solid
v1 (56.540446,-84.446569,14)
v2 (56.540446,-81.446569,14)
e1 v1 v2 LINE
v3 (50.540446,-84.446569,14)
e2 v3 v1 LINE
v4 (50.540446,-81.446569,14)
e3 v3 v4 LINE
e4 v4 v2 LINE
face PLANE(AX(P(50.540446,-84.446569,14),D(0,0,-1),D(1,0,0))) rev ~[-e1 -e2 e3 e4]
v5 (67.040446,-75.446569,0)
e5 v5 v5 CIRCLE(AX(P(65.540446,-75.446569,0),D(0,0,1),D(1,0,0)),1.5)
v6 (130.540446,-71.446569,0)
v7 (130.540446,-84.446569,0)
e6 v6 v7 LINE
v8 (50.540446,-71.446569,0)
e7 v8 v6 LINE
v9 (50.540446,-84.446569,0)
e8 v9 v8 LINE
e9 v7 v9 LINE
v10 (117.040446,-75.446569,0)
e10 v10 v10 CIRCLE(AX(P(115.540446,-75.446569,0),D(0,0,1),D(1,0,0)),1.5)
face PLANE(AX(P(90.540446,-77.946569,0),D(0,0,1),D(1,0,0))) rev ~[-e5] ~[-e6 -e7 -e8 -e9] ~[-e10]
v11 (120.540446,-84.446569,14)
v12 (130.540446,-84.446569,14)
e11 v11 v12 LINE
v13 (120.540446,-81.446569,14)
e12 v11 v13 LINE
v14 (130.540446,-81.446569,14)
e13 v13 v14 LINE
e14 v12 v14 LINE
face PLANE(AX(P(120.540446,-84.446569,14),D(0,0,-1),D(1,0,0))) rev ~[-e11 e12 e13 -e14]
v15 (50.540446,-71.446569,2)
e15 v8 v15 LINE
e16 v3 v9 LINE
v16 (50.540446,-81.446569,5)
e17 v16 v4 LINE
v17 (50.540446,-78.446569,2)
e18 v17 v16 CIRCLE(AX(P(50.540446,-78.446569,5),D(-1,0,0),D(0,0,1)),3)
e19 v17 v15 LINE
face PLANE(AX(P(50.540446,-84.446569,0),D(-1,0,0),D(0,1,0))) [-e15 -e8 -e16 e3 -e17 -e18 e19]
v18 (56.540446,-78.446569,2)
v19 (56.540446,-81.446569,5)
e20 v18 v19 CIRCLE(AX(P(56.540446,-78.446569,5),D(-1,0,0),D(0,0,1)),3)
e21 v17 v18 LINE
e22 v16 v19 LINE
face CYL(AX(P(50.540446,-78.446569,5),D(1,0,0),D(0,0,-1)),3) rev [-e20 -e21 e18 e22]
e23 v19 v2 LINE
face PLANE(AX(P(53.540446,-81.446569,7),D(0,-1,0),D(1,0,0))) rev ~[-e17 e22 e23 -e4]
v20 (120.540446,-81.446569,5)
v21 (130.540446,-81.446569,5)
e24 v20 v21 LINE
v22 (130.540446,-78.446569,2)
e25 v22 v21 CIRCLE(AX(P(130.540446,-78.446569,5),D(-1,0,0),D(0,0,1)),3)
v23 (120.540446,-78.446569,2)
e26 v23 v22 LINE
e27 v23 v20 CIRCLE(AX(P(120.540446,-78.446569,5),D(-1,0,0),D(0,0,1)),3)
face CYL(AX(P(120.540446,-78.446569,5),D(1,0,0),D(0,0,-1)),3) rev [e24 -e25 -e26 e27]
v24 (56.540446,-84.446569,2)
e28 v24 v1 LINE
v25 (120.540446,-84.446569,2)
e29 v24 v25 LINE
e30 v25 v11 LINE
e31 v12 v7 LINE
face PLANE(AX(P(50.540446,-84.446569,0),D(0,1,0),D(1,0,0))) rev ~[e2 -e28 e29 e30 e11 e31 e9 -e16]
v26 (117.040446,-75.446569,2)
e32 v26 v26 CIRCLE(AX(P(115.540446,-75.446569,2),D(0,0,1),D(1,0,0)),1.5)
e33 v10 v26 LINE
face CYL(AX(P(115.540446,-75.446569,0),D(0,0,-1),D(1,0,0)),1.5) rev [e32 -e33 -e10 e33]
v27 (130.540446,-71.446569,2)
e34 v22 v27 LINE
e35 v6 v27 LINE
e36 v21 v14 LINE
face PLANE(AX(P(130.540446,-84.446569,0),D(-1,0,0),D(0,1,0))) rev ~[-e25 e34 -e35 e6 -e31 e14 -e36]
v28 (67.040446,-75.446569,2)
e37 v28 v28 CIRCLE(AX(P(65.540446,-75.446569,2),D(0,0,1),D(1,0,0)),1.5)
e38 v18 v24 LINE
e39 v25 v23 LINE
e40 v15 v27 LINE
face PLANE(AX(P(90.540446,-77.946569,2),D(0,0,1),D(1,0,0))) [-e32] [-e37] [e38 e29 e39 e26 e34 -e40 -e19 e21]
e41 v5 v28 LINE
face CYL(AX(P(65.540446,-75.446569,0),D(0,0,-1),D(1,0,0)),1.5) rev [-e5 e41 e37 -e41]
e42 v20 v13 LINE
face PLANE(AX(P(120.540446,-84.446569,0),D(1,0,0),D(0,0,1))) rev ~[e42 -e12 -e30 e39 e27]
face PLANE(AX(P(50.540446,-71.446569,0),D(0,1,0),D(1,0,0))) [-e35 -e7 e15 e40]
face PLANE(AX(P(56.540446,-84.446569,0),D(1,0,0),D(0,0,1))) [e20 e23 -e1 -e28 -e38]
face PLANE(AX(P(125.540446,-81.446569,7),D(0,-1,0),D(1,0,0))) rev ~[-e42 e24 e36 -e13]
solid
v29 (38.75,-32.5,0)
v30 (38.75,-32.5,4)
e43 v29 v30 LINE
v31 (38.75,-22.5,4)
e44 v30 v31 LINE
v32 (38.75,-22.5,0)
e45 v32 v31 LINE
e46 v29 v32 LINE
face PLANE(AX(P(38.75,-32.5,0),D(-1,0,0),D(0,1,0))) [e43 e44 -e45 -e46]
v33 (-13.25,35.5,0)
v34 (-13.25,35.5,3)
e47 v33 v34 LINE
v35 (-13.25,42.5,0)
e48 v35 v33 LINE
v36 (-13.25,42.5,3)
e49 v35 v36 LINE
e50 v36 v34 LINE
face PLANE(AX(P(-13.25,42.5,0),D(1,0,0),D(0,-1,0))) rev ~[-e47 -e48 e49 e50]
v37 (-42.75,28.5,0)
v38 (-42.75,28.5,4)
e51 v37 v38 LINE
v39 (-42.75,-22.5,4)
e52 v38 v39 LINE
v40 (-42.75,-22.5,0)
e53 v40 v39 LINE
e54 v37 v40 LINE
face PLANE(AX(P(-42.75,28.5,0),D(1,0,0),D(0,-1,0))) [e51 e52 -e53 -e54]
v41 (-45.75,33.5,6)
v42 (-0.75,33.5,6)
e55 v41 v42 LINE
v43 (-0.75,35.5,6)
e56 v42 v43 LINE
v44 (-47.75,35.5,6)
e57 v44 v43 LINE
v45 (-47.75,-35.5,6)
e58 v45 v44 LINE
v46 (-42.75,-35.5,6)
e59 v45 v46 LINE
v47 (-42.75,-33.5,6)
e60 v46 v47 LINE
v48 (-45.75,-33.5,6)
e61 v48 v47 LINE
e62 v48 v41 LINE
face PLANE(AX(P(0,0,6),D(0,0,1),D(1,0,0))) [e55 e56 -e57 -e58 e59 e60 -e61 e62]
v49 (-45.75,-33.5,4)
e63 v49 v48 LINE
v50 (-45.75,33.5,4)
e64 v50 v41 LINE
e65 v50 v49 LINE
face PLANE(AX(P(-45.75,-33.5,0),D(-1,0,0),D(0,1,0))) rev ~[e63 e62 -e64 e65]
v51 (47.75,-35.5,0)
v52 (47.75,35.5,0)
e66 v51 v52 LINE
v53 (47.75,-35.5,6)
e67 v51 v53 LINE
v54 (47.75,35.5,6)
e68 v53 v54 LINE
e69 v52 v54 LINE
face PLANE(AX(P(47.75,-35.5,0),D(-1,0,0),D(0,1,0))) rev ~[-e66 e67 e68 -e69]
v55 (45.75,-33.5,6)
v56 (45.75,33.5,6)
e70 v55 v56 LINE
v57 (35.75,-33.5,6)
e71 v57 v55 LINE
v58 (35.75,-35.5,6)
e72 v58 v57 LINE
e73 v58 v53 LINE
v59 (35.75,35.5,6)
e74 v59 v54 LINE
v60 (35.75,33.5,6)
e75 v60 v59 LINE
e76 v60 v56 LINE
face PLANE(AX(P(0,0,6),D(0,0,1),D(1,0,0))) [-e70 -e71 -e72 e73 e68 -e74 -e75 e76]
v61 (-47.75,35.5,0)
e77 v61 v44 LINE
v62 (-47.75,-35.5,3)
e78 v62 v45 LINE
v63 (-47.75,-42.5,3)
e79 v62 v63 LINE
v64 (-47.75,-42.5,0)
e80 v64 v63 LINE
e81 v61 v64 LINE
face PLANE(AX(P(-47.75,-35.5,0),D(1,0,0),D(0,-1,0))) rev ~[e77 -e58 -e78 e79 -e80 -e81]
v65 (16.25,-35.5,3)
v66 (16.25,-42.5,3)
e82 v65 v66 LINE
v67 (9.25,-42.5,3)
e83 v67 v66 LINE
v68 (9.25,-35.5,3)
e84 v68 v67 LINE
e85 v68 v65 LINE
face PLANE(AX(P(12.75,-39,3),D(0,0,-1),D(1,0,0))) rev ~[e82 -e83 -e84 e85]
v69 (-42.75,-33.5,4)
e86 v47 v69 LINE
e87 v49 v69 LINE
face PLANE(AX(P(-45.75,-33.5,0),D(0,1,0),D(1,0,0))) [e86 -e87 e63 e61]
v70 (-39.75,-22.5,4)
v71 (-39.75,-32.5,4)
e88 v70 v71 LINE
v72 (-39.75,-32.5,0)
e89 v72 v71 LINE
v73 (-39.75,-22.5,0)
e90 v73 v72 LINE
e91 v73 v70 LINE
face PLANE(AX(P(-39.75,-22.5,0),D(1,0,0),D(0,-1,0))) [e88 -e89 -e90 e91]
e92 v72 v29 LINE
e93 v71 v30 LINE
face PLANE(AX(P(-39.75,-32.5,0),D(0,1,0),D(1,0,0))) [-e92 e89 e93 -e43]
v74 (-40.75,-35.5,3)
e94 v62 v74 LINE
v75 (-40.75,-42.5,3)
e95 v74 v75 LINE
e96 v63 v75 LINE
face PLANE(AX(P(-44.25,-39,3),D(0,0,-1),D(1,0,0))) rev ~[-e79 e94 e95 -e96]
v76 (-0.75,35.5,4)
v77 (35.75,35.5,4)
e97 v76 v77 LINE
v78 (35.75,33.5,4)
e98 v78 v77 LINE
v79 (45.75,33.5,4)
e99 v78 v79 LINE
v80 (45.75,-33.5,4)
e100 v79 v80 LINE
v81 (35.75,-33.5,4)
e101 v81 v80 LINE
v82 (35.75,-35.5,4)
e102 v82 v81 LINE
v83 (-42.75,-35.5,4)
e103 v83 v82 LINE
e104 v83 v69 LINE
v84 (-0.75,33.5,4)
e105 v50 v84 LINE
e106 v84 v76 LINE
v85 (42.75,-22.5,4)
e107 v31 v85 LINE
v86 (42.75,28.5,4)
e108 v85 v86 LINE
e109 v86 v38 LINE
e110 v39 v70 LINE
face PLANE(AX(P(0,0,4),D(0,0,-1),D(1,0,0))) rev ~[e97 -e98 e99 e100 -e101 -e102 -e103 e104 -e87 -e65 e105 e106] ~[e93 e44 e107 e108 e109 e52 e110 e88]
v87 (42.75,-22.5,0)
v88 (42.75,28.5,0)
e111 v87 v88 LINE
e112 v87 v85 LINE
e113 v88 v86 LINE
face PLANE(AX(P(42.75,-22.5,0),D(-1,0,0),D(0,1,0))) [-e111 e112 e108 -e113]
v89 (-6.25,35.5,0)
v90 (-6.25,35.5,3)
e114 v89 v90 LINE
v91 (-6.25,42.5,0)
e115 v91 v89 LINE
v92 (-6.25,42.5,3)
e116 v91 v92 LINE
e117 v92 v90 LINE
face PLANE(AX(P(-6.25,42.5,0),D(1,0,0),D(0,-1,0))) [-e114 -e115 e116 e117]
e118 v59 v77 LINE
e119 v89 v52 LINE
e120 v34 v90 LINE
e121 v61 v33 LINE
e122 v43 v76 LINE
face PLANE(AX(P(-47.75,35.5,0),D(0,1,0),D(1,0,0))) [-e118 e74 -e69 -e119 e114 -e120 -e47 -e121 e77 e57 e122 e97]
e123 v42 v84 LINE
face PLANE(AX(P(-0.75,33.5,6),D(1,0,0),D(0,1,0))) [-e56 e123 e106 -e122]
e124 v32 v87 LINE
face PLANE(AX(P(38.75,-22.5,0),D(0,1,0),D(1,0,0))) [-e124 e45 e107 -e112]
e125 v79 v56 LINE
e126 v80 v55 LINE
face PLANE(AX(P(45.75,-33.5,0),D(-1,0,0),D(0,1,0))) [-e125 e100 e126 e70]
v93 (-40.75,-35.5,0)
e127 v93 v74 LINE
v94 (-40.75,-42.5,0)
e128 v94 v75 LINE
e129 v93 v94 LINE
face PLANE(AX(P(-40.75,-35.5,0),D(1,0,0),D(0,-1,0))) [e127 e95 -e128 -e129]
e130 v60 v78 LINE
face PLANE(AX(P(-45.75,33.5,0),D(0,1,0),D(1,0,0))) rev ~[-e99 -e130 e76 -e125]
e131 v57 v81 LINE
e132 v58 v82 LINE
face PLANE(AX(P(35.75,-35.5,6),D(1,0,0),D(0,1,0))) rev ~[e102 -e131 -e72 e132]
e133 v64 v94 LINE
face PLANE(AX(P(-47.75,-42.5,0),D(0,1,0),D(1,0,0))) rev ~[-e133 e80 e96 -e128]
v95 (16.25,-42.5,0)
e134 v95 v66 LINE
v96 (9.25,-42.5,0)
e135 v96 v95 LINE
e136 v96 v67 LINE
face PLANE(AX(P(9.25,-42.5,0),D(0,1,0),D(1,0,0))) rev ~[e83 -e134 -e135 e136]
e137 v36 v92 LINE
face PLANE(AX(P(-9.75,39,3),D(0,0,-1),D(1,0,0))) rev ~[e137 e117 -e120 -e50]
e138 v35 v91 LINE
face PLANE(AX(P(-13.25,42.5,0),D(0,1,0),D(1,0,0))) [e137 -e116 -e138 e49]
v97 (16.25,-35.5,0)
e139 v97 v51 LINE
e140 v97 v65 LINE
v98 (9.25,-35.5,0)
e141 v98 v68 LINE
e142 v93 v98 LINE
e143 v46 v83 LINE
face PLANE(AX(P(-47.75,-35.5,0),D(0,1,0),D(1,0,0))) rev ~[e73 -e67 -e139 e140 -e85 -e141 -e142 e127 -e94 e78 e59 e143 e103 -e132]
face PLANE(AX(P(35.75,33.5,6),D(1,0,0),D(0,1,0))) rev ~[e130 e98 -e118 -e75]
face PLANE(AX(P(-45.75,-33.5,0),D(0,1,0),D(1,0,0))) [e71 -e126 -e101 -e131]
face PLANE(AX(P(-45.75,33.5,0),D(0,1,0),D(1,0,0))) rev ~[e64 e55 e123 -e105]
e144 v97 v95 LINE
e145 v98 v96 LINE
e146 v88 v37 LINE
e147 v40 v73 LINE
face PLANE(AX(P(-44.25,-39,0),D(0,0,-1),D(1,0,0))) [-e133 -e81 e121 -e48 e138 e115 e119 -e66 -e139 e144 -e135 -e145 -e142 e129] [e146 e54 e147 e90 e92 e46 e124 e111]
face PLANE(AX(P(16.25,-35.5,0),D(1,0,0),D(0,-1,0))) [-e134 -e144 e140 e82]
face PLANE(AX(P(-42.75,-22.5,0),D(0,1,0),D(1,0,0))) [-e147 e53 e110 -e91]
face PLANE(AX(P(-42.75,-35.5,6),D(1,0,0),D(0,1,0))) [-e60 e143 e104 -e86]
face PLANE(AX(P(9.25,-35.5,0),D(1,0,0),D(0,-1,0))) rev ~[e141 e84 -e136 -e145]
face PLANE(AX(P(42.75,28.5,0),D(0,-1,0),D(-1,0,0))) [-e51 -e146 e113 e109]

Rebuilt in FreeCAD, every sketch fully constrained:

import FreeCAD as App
import Part
import Sketcher

V = App.Vector
Q = App.Units.Quantity


def edges_at(feature, points):
    """Names of the edges that pass closest to the given points."""
    edges = feature.Shape.Edges
    near = lambda p: min(range(len(edges)), key=lambda i: edges[i].distToShape(Part.Vertex(*p))[0])
    return sorted({f"Edge{near(p) + 1}" for p in points})


def add_polygon(sketch, points):
    """Adds a closed chain of lines whose ends are joined by coincident constraints."""
    first, n = sketch.GeometryCount, len(points)
    for a, b in zip(points, points[1:] + points[:1]):
        sketch.addGeometry(Part.LineSegment(App.Vector(*a, 0), App.Vector(*b, 0)), False)
    for i in range(n):
        sketch.addConstraint(Sketcher.Constraint("Coincident", first + i, 2, first + (i + 1) % n, 1))

doc = App.newDocument("Part")
body = doc.addObject("PartDesign::Body", "Body")

# Sketch on XY plane
sketch1 = body.newObject("Sketcher::SketchObject", "Sketch")
sketch1.AttachmentSupport = (doc.getObject("XY_Plane"), [""])
sketch1.MapMode = "FlatFace"
add_polygon(sketch1, [(-48, 36), (-48, -36), (48, -36), (48, 36)])  # lines 0-3
add_polygon(sketch1, [(46, -34), (-46, -34), (-46, 34), (46, 34)])  # lines 4-7
sketch1.addConstraint(Sketcher.Constraint("Vertical", 0))
sketch1.addConstraint(Sketcher.Constraint("Horizontal", 1))
sketch1.addConstraint(Sketcher.Constraint("Vertical", 2))
sketch1.addConstraint(Sketcher.Constraint("Horizontal", 3))
sketch1.addConstraint(Sketcher.Constraint("Horizontal", 4))
sketch1.addConstraint(Sketcher.Constraint("Vertical", 5))
sketch1.addConstraint(Sketcher.Constraint("Horizontal", 6))
sketch1.addConstraint(Sketcher.Constraint("Vertical", 7))
sketch1.addConstraint(Sketcher.Constraint("Symmetric", 0, 2, 2, 2, -1, 1))
sketch1.addConstraint(Sketcher.Constraint("Symmetric", 4, 2, 6, 2, -1, 1))
sketch1.addConstraint(Sketcher.Constraint("DistanceY", 0, 2, 0, 1, Q("71 mm")))
sketch1.addConstraint(Sketcher.Constraint("DistanceY", 5, 1, 5, 2, Q("67 mm")))
sketch1.addConstraint(Sketcher.Constraint("DistanceX", 1, 1, 1, 2, Q("95.5 mm")))
sketch1.addConstraint(Sketcher.Constraint("DistanceX", 4, 2, 4, 1, Q("91.5 mm")))
pad1 = body.newObject("PartDesign::Pad", "Pad")
pad1.Profile = sketch1
pad1.Length = 6

# Sketch on XY plane
sketch2 = body.newObject("Sketcher::SketchObject", "Sketch001")
sketch2.AttachmentSupport = (doc.getObject("XY_Plane"), [""])
sketch2.MapMode = "FlatFace"
add_polygon(sketch2, [(-45.8, -33.5), (-45.8, 33.5), (45.8, 33.5), (45.8, -33.5)])  # lines 0-3
add_polygon(sketch2, [(42.8, 28.5), (-42.8, 28.5), (-42.8, -22.5), (-39.8, -22.5), (-39.8, -32.5), (38.8, -32.5), (38.8, -22.5), (42.8, -22.5)])  # lines 4-11
sketch2.addConstraint(Sketcher.Constraint("Vertical", 0))
sketch2.addConstraint(Sketcher.Constraint("Horizontal", 1))
sketch2.addConstraint(Sketcher.Constraint("Vertical", 2))
sketch2.addConstraint(Sketcher.Constraint("Horizontal", 3))
sketch2.addConstraint(Sketcher.Constraint("Horizontal", 4))
sketch2.addConstraint(Sketcher.Constraint("Vertical", 5))
sketch2.addConstraint(Sketcher.Constraint("Horizontal", 6))
sketch2.addConstraint(Sketcher.Constraint("Vertical", 7))
sketch2.addConstraint(Sketcher.Constraint("Horizontal", 8))
sketch2.addConstraint(Sketcher.Constraint("Vertical", 9))
sketch2.addConstraint(Sketcher.Constraint("Horizontal", 10))
sketch2.addConstraint(Sketcher.Constraint("Vertical", 11))
sketch2.addConstraint(Sketcher.Constraint("Symmetric", 0, 2, 2, 2, -1, 1))
sketch2.addConstraint(Sketcher.Constraint("Symmetric", 5, 2, 10, 2, -2))
sketch2.addConstraint(Sketcher.Constraint("DistanceX", 6, 1, 6, 2, Q("3 mm")))
sketch2.addConstraint(Sketcher.Constraint("DistanceX", 10, 1, 10, 2, Q("4 mm")))
sketch2.addConstraint(Sketcher.Constraint("DistanceY", 0, 1, 0, 2, Q("67 mm")))
sketch2.addConstraint(Sketcher.Constraint("DistanceY", 5, 2, 5, 1, Q("51 mm")))
sketch2.addConstraint(Sketcher.Constraint("DistanceY", 7, 2, 7, 1, Q("10 mm")))
sketch2.addConstraint(Sketcher.Constraint("DistanceX", 1, 1, 1, 2, Q("91.5 mm")))
sketch2.addConstraint(Sketcher.Constraint("DistanceX", 4, 2, 4, 1, Q("85.5 mm")))
sketch2.addConstraint(Sketcher.Constraint("DistanceY", 4, 2, 0, 2, Q("5 mm")))
pad2 = body.newObject("PartDesign::Pad", "Pad001")
pad2.Profile = sketch2
pad2.Length = 4

# Sketch on XY plane
sketch3 = body.newObject("Sketcher::SketchObject", "Sketch002")
sketch3.AttachmentSupport = (doc.getObject("XY_Plane"), [""])
sketch3.MapMode = "FlatFace"
sketch3.AttachmentOffset = App.Placement(V(0, 0, 6), App.Rotation())
add_polygon(sketch3, [(-42.8, -33.5), (-42.8, -35.5), (35.8, -35.5), (35.8, -33.5)])  # lines 0-3
add_polygon(sketch3, [(-0.8, 35.5), (-0.8, 33.5), (35.8, 33.5), (35.8, 35.5)])  # lines 4-7
sketch3.addConstraint(Sketcher.Constraint("Vertical", 0))
sketch3.addConstraint(Sketcher.Constraint("Horizontal", 1))
sketch3.addConstraint(Sketcher.Constraint("Vertical", 2))
sketch3.addConstraint(Sketcher.Constraint("Horizontal", 3))
sketch3.addConstraint(Sketcher.Constraint("Vertical", 4))
sketch3.addConstraint(Sketcher.Constraint("Horizontal", 5))
sketch3.addConstraint(Sketcher.Constraint("Vertical", 6))
sketch3.addConstraint(Sketcher.Constraint("Horizontal", 7))
sketch3.addConstraint(Sketcher.Constraint("Symmetric", 2, 2, 5, 2, -1))
sketch3.addConstraint(Sketcher.Constraint("Equal", 2, 4))
sketch3.addConstraint(Sketcher.Constraint("DistanceY", 0, 2, 0, 1, Q("2 mm")))
sketch3.addConstraint(Sketcher.Constraint("DistanceX", 1, 1, 1, 2, Q("78.5 mm")))
sketch3.addConstraint(Sketcher.Constraint("DistanceX", 5, 1, 5, 2, Q("36.5 mm")))
sketch3.addConstraint(Sketcher.Constraint("DistanceY", 2, 2, 4, 2, Q("67 mm")))
sketch3.addConstraint(Sketcher.Constraint("DistanceX", 0, 2, -1, 1, Q("42.75 mm")))
pocket1 = body.newObject("PartDesign::Pocket", "Pocket")
pocket1.Profile = sketch3
pocket1.Length = 2

# Sketch on XY plane
sketch4 = body.newObject("Sketcher::SketchObject", "Sketch003")
sketch4.AttachmentSupport = (doc.getObject("XY_Plane"), [""])
sketch4.MapMode = "FlatFace"
add_polygon(sketch4, [(-48, -42), (-48, -36), (-41, -36), (-41, -42)])  # lines 0-3
add_polygon(sketch4, [(-13, 36), (-13, 42), (-6, 42), (-6, 36)])  # lines 4-7
add_polygon(sketch4, [(9, -42), (9, -36), (16, -36), (16, -42)])  # lines 8-11
sketch4.addConstraint(Sketcher.Constraint("Vertical", 0))
sketch4.addConstraint(Sketcher.Constraint("Horizontal", 1))
sketch4.addConstraint(Sketcher.Constraint("Vertical", 2))
sketch4.addConstraint(Sketcher.Constraint("Horizontal", 3))
sketch4.addConstraint(Sketcher.Constraint("Vertical", 4))
sketch4.addConstraint(Sketcher.Constraint("Horizontal", 5))
sketch4.addConstraint(Sketcher.Constraint("Vertical", 6))
sketch4.addConstraint(Sketcher.Constraint("Horizontal", 7))
sketch4.addConstraint(Sketcher.Constraint("Vertical", 8))
sketch4.addConstraint(Sketcher.Constraint("Horizontal", 9))
sketch4.addConstraint(Sketcher.Constraint("Vertical", 10))
sketch4.addConstraint(Sketcher.Constraint("Horizontal", 11))
sketch4.addConstraint(Sketcher.Constraint("Horizontal", 1, 2, 8, 2))
sketch4.addConstraint(Sketcher.Constraint("Horizontal", 3, 2, 10, 2))
sketch4.addConstraint(Sketcher.Constraint("Equal", 3, 5))
sketch4.addConstraint(Sketcher.Constraint("Equal", 7, 9))
sketch4.addConstraint(Sketcher.Constraint("Equal", 11, 0))
sketch4.addConstraint(Sketcher.Constraint("Equal", 2, 4))
sketch4.addConstraint(Sketcher.Constraint("DistanceX", 1, 1, 1, 2, Q("7 mm")))
sketch4.addConstraint(Sketcher.Constraint("DistanceY", 1, 2, 4, 2, Q("78 mm")))
sketch4.addConstraint(Sketcher.Constraint("DistanceX", 1, 2, 8, 2, Q("50 mm")))
sketch4.addConstraint(Sketcher.Constraint("DistanceY", 0, 2, -1, 1, Q("35.5 mm")))
sketch4.addConstraint(Sketcher.Constraint("DistanceX", 1, 2, 4, 2, Q("27.5 mm")))
sketch4.addConstraint(Sketcher.Constraint("DistanceX", 0, 2, -1, 1, Q("47.75 mm")))
pad3 = body.newObject("PartDesign::Pad", "Pad002")
pad3.Profile = sketch4
pad3.Length = 3
body2 = doc.addObject("PartDesign::Body", "Body001")

# Sketch on XY plane
sketch5 = body2.newObject("Sketcher::SketchObject", "Sketch004")
sketch5.AttachmentSupport = (doc.getObject("XY_Plane001"), [""])
sketch5.MapMode = "FlatFace"
add_polygon(sketch5, [(50.5, -71.4), (50.5, -84.4), (130.5, -84.4), (130.5, -71.4)])  # lines 0-3
sketch5.addGeometry(Part.Circle(V(65.5, -75.4, 0), V(0, 0, 1), 1.5), False)  # 4
sketch5.addGeometry(Part.Circle(V(115.5, -75.4, 0), V(0, 0, 1), 1.5), False)  # 5
sketch5.addConstraint(Sketcher.Constraint("Vertical", 0))
sketch5.addConstraint(Sketcher.Constraint("Horizontal", 1))
sketch5.addConstraint(Sketcher.Constraint("Vertical", 2))
sketch5.addConstraint(Sketcher.Constraint("Horizontal", 3))
sketch5.addConstraint(Sketcher.Constraint("Equal", 4, 5))
sketch5.addConstraint(Sketcher.Constraint("Horizontal", 4, 3, 5, 3))
sketch5.addConstraint(Sketcher.Constraint("Diameter", 4, Q("3 mm")))
sketch5.addConstraint(Sketcher.Constraint("DistanceX", 1, 1, 1, 2, Q("80 mm")))
sketch5.addConstraint(Sketcher.Constraint("DistanceY", 0, 2, 0, 1, Q("13 mm")))
sketch5.addConstraint(Sketcher.Constraint("DistanceX", 4, 3, 5, 3, Q("50 mm")))
sketch5.addConstraint(Sketcher.Constraint("DistanceX", 0, 2, 4, 3, Q("15 mm")))
sketch5.addConstraint(Sketcher.Constraint("DistanceY", 0, 2, 4, 3, Q("9 mm")))
sketch5.addConstraint(Sketcher.Constraint("DistanceY", 4, 3, -1, 1, Q("75.446569 mm")))
sketch5.addConstraint(Sketcher.Constraint("DistanceX", -1, 1, 4, 3, Q("65.540446 mm")))
pad4 = body2.newObject("PartDesign::Pad", "Pad003")
pad4.Profile = sketch5
pad4.Length = 2

# Sketch on XZ plane
sketch6 = body2.newObject("Sketcher::SketchObject", "Sketch005")
sketch6.AttachmentSupport = (doc.getObject("XZ_Plane001"), [""])
sketch6.MapMode = "FlatFace"
sketch6.AttachmentOffset = App.Placement(V(0, 0, 84.446569), App.Rotation())
add_polygon(sketch6, [(121, 14), (121, 0), (131, 0), (131, 14)])  # lines 0-3
add_polygon(sketch6, [(51, 14), (51, 0), (57, 0), (57, 14)])  # lines 4-7
sketch6.addConstraint(Sketcher.Constraint("Vertical", 0))
sketch6.addConstraint(Sketcher.Constraint("Horizontal", 1))
sketch6.addConstraint(Sketcher.Constraint("Vertical", 2))
sketch6.addConstraint(Sketcher.Constraint("Horizontal", 3))
sketch6.addConstraint(Sketcher.Constraint("Vertical", 4))
sketch6.addConstraint(Sketcher.Constraint("Horizontal", 5))
sketch6.addConstraint(Sketcher.Constraint("Vertical", 6))
sketch6.addConstraint(Sketcher.Constraint("Horizontal", 7))
sketch6.addConstraint(Sketcher.Constraint("PointOnObject", 0, 2, -1))
sketch6.addConstraint(Sketcher.Constraint("PointOnObject", 4, 2, -1))
sketch6.addConstraint(Sketcher.Constraint("Horizontal", 3, 2, 6, 2))
sketch6.addConstraint(Sketcher.Constraint("DistanceX", 1, 1, 1, 2, Q("10 mm")))
sketch6.addConstraint(Sketcher.Constraint("DistanceX", 5, 1, 5, 2, Q("6 mm")))
sketch6.addConstraint(Sketcher.Constraint("DistanceY", 0, 2, 0, 1, Q("14 mm")))
sketch6.addConstraint(Sketcher.Constraint("DistanceX", 4, 2, 0, 2, Q("70 mm")))
sketch6.addConstraint(Sketcher.Constraint("DistanceX", -1, 1, 0, 2, Q("120.540446 mm")))
pad5 = body2.newObject("PartDesign::Pad", "Pad004")
pad5.Profile = sketch6
pad5.Length = 3
pad5.Reversed = True
doc.recompute()

fillet = body2.newObject("PartDesign::Fillet", "Fillet")
fillet.Base = (pad5, edges_at(pad5, [(53.54, -81.447, 2), (125.54, -81.447, 2)]))
fillet.Radius = 3

doc.recompute()
